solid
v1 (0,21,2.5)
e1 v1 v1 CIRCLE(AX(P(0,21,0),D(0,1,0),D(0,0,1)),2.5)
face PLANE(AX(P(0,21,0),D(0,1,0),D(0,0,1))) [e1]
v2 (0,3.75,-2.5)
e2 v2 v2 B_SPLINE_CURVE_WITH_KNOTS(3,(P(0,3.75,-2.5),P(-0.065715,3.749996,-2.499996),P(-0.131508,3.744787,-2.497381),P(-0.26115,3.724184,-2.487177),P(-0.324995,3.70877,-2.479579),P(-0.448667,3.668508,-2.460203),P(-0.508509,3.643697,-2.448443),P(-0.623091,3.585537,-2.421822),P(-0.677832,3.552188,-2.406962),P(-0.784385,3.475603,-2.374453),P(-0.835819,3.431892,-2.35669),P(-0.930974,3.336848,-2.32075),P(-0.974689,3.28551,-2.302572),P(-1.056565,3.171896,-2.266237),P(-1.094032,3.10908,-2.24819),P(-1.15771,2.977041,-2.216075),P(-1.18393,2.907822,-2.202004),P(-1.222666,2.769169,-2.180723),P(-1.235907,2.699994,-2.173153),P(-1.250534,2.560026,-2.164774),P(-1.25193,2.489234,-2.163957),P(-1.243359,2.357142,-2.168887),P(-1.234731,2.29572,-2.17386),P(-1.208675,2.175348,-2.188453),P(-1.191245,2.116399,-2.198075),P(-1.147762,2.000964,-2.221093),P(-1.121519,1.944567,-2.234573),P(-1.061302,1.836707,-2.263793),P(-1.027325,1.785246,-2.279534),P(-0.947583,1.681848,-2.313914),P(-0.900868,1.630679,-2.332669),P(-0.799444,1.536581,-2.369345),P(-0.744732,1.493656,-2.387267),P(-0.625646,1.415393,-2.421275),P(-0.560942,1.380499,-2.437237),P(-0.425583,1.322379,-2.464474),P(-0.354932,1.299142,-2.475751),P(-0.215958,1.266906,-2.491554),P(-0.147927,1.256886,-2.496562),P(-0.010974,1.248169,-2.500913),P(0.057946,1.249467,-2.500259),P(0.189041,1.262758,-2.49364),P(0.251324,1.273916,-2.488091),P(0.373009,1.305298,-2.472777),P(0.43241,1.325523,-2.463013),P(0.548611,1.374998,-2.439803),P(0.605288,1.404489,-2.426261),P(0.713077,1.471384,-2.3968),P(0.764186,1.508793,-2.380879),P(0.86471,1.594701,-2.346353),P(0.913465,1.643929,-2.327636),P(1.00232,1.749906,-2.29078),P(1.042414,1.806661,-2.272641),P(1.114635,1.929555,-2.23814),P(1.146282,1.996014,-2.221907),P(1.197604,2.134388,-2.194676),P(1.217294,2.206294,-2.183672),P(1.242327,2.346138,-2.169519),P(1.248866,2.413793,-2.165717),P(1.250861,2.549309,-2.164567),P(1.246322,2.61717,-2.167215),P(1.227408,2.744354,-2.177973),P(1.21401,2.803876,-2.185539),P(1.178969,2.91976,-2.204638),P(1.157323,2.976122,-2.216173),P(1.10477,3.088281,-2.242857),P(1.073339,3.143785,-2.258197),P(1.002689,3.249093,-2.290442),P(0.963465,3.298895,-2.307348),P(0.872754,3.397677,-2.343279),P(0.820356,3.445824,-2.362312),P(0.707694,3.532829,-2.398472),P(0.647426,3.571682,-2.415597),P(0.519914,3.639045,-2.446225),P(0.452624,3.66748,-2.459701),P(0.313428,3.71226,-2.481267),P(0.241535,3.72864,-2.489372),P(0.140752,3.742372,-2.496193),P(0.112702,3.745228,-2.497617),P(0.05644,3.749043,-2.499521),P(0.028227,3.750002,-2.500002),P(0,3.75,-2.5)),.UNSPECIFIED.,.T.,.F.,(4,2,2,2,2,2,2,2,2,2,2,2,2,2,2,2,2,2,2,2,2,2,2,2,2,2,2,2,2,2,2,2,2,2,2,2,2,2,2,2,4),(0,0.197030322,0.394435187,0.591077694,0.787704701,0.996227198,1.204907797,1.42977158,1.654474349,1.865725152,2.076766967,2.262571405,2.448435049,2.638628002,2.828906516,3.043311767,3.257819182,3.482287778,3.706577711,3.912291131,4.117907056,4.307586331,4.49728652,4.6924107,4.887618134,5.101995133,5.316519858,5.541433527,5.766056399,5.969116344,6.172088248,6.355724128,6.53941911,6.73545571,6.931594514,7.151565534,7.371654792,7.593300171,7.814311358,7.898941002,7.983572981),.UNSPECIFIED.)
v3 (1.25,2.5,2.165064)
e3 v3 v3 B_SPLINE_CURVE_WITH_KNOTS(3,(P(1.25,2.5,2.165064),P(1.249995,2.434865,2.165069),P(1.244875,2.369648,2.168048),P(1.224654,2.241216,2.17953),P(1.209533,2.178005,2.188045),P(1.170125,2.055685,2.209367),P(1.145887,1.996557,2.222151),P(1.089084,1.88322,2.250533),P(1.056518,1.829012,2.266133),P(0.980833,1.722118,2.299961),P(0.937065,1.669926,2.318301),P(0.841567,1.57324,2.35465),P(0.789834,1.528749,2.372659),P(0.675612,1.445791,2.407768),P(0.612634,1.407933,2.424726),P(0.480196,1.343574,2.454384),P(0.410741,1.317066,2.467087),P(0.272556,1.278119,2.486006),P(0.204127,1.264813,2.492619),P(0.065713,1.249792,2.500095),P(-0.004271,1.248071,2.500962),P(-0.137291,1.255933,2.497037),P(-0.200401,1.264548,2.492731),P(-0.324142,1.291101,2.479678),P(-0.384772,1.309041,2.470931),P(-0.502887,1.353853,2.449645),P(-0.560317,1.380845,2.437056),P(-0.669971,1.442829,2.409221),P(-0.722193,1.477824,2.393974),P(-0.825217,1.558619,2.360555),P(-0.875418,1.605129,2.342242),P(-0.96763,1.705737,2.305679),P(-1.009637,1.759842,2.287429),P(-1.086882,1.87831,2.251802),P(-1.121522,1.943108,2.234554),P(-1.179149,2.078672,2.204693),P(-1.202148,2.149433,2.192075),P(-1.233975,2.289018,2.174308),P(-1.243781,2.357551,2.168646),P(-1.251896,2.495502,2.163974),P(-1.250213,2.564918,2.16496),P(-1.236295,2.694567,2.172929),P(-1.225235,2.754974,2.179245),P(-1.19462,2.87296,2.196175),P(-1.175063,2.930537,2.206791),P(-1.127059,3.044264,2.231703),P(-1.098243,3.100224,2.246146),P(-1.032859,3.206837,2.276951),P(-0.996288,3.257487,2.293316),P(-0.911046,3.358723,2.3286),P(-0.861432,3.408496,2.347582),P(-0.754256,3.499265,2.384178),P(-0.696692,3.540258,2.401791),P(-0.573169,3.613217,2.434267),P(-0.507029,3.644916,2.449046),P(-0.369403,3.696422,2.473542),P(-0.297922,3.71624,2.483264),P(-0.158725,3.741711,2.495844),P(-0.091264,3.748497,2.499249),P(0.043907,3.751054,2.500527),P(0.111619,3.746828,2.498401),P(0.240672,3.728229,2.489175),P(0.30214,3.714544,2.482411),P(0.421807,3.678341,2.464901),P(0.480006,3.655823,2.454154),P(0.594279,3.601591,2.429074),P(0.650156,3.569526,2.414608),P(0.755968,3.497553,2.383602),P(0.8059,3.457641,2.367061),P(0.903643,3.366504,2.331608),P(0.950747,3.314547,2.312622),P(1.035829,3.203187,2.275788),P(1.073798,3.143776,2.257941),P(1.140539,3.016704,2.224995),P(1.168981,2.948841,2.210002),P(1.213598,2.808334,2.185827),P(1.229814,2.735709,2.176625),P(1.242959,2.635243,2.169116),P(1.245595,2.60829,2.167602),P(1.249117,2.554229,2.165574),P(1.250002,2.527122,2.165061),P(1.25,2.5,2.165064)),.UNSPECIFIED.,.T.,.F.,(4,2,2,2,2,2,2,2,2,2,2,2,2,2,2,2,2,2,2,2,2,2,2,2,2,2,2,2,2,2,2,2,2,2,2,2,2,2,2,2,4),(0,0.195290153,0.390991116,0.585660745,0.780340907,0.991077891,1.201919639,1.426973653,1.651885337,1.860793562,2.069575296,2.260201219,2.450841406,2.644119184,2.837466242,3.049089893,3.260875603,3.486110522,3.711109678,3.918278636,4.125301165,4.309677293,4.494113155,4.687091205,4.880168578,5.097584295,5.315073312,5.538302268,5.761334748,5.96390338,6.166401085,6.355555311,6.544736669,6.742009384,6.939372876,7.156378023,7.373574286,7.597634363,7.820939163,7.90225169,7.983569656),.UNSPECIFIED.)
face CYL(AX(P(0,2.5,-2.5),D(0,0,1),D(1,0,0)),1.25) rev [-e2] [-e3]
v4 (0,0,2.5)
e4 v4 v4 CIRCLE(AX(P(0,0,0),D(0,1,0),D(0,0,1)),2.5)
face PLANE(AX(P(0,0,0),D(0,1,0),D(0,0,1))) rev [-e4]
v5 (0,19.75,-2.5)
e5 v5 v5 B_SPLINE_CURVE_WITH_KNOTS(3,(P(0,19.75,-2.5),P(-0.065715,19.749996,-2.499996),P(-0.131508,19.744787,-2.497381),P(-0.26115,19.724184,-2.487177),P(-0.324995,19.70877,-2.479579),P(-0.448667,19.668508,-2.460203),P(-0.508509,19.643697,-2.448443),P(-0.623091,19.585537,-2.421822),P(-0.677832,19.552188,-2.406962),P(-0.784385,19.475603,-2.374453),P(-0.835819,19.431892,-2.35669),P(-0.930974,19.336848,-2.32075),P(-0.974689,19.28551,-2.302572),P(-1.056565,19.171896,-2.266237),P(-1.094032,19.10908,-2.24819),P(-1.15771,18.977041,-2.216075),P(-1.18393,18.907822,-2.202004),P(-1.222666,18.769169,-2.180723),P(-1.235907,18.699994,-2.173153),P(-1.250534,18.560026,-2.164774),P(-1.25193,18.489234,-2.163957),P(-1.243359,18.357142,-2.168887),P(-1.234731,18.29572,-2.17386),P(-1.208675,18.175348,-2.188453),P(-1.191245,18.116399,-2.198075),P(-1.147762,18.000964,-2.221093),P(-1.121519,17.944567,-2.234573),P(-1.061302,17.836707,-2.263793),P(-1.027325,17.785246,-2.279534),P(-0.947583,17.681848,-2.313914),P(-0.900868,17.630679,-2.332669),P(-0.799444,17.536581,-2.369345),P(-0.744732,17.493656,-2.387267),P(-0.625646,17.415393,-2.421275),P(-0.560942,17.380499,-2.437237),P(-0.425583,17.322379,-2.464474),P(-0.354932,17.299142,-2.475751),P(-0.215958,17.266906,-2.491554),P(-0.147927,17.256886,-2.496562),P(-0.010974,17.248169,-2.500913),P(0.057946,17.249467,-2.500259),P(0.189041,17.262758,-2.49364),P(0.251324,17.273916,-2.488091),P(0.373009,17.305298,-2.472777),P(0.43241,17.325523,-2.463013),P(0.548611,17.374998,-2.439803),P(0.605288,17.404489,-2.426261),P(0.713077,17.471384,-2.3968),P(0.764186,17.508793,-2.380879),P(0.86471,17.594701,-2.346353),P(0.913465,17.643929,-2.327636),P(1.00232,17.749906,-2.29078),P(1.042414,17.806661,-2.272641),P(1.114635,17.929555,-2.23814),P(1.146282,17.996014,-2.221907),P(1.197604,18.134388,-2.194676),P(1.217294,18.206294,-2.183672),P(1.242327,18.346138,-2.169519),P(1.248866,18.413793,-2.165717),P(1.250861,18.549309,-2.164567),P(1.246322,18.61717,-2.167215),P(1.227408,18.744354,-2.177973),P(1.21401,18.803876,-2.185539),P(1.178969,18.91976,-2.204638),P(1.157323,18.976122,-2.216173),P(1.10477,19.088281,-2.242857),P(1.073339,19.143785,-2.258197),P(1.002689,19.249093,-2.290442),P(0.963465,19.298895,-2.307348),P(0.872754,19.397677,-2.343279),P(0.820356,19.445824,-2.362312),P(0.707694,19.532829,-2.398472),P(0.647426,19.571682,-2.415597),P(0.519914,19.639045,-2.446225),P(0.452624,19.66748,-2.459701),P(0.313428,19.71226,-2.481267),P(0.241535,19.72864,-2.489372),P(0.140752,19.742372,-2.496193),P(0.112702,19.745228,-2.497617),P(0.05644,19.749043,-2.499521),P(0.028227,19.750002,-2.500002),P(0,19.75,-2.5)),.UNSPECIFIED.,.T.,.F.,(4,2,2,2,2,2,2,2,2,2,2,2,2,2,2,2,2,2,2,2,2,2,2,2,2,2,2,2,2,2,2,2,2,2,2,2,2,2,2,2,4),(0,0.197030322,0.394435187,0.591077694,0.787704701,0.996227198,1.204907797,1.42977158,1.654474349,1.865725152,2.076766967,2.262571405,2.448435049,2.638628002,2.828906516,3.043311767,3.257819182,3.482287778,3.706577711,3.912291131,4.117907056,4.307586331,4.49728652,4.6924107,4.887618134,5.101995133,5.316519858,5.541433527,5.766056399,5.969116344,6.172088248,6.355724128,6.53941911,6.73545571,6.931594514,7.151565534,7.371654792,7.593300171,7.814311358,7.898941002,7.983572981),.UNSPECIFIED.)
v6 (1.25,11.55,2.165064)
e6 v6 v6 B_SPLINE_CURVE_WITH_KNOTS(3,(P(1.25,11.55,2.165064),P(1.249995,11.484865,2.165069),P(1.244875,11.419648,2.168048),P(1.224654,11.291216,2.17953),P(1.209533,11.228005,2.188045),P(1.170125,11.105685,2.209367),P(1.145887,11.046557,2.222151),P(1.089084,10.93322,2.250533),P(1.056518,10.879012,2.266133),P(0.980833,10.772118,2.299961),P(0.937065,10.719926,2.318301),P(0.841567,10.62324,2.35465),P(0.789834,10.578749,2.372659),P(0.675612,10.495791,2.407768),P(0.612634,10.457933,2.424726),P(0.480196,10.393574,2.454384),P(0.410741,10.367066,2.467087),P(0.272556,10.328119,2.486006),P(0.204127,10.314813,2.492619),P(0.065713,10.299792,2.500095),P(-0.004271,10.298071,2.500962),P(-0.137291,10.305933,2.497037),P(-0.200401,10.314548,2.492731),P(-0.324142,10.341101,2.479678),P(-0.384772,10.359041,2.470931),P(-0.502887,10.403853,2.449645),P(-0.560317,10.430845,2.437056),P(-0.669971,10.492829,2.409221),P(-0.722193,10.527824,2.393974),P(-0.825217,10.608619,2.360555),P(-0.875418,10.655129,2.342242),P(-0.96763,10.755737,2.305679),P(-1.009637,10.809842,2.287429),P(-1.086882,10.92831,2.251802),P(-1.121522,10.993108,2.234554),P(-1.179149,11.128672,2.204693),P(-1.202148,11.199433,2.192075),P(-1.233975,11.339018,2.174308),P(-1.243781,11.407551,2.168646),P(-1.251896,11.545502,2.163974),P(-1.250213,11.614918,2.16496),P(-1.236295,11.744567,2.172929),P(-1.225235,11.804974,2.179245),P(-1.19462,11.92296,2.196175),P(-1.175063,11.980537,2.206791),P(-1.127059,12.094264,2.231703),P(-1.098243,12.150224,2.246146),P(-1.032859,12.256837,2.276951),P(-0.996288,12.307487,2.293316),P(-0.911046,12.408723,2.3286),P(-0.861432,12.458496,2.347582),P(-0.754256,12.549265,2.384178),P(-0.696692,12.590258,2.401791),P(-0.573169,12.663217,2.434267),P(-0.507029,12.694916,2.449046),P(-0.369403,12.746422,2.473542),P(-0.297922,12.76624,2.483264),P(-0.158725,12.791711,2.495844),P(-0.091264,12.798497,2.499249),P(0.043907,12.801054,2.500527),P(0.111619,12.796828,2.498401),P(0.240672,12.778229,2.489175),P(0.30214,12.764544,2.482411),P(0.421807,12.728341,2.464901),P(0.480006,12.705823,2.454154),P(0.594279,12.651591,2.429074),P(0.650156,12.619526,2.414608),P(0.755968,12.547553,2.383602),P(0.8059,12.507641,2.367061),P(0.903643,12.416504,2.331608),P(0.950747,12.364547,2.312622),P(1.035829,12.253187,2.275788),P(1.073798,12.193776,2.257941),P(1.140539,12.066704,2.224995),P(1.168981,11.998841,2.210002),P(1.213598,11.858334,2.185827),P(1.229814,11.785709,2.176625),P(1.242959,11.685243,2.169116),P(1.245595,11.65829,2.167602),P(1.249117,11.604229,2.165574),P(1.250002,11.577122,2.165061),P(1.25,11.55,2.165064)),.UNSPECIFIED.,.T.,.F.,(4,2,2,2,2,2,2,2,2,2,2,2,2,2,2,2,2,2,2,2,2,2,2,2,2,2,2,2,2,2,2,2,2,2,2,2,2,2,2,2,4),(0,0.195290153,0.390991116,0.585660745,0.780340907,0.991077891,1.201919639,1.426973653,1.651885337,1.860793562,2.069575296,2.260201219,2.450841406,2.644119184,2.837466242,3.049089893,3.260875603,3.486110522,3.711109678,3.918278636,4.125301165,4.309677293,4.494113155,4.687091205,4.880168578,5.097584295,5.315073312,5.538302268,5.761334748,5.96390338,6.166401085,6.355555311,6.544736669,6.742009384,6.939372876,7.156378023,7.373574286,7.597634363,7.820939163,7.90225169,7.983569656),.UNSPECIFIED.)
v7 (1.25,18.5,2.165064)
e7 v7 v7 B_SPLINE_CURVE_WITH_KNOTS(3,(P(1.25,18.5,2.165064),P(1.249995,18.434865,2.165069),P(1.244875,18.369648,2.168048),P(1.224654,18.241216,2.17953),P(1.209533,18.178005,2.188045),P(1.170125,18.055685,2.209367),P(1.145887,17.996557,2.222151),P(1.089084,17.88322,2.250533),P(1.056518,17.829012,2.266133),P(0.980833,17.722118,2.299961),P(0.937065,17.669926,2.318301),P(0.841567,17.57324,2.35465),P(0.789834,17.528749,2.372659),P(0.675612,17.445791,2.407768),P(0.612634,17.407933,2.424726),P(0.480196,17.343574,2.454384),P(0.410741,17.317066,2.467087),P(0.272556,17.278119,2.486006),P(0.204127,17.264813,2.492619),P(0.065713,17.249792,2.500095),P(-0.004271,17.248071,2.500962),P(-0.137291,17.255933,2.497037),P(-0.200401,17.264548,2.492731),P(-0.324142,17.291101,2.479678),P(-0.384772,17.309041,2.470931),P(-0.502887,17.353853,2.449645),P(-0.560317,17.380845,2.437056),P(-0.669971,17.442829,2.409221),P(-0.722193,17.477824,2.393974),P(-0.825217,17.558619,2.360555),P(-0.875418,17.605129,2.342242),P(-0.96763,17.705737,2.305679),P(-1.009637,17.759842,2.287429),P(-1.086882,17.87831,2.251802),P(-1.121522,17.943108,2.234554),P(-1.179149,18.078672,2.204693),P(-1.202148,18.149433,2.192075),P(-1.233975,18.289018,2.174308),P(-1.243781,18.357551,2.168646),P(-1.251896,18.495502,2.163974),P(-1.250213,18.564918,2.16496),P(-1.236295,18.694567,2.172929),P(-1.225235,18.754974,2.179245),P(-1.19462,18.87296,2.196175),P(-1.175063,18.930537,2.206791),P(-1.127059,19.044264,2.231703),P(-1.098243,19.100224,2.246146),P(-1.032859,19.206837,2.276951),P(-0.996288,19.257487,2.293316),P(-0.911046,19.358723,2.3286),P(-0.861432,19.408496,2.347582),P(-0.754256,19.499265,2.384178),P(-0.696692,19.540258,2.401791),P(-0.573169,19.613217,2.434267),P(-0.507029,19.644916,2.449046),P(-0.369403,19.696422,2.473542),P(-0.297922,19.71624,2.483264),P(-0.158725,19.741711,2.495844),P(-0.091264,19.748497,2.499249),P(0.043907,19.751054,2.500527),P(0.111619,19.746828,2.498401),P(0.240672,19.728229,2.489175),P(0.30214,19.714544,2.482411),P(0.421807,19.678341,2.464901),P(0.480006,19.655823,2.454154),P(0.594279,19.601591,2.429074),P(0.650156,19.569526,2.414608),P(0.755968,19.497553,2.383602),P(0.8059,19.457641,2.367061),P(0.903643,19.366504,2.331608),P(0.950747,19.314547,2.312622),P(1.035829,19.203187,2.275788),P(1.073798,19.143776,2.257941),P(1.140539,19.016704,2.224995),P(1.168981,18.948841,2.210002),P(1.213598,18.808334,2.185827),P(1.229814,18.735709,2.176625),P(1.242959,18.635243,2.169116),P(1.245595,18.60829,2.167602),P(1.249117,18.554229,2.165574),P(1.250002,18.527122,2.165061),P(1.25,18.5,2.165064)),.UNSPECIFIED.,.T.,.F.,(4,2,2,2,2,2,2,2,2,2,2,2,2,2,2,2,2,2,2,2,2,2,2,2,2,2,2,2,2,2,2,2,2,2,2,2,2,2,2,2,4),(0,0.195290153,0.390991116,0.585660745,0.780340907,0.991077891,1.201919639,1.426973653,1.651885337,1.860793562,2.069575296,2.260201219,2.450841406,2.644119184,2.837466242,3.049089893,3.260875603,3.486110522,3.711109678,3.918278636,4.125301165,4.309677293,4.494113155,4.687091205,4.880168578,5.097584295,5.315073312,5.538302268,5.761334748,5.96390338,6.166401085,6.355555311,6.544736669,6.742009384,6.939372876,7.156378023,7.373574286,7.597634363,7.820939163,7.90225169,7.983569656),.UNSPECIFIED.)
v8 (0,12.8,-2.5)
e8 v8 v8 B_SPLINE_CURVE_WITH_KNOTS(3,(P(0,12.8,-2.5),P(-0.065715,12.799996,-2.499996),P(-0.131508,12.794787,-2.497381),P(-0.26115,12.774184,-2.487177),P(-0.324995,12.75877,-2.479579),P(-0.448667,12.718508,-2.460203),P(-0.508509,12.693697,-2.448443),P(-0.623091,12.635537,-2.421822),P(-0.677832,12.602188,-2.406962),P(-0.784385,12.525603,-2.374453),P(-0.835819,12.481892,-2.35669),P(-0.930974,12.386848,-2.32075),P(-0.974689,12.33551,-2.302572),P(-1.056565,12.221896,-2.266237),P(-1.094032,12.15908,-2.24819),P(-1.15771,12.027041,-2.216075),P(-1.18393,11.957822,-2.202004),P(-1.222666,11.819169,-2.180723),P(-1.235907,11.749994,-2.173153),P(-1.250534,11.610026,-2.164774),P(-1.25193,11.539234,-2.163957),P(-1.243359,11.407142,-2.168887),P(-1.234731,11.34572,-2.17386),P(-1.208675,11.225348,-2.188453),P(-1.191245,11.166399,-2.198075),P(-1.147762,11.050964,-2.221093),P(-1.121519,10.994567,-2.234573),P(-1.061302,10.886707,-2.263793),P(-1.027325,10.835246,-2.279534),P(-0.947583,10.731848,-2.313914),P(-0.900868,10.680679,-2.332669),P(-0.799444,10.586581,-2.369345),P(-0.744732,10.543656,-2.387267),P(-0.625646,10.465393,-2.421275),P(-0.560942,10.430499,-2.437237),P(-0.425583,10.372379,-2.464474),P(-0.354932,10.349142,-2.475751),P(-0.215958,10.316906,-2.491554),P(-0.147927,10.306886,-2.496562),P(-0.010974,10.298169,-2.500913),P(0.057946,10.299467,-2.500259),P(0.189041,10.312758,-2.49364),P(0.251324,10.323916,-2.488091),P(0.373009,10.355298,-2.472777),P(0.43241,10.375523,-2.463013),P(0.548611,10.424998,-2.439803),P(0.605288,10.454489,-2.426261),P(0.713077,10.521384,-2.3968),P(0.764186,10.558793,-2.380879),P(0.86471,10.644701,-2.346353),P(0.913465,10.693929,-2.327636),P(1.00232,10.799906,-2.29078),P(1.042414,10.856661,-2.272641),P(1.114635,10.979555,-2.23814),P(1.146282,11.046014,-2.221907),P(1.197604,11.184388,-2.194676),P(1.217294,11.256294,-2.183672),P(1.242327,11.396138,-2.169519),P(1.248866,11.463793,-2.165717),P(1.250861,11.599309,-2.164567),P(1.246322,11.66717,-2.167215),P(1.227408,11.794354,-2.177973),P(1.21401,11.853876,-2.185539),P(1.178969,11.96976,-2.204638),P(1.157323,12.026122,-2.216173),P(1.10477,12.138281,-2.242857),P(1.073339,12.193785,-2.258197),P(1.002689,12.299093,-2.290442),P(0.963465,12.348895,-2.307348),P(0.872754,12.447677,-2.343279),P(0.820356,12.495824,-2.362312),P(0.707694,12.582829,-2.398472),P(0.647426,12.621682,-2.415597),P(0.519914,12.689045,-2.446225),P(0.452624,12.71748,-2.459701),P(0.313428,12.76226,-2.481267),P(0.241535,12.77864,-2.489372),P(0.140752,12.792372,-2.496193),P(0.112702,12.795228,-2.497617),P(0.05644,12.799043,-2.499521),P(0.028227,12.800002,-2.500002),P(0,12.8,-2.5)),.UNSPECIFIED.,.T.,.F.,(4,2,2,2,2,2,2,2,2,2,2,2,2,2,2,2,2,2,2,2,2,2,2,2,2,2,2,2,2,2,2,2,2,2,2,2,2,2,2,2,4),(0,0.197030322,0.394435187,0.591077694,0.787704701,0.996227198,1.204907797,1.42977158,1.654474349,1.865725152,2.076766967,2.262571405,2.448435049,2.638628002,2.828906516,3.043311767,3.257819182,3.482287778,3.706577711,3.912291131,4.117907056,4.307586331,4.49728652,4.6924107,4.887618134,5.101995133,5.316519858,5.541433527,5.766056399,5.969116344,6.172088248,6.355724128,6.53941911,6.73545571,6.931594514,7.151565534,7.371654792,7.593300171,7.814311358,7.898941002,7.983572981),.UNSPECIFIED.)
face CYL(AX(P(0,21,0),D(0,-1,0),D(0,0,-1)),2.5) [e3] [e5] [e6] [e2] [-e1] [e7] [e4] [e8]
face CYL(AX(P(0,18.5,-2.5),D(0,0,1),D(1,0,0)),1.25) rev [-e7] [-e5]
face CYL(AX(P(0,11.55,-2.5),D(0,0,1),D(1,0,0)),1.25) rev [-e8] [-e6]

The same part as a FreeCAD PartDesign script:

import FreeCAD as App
import Part
import Sketcher
from FreeCAD import Vector

doc = App.newDocument("Part")
body = doc.addObject("PartDesign::Body", "Body")

sketch1 = doc.addObject("Sketcher::SketchObject", "Sketch")
body.addObject(sketch1)
sketch1.AttachmentSupport = (doc.XZ_Plane, [""])
sketch1.MapMode = "FlatFace"
sketch1.addGeometry(Part.Circle(Vector(0, 0, 0), Vector(0, 0, 1), 2.5), False)
sketch1.addConstraint([
    Sketcher.Constraint("Coincident", 0, 3, -1, 1),
    Sketcher.Constraint("Diameter", 0, 5.0),
])
pad1 = doc.addObject("PartDesign::Pad", "Pad")
body.addObject(pad1)
pad1.Profile = sketch1
pad1.Length = 21
pad1.Reversed = True

sketch2 = doc.addObject("Sketcher::SketchObject", "Sketch001")
body.addObject(sketch2)
sketch2.AttachmentSupport = (doc.XY_Plane, [""])
sketch2.MapMode = "FlatFace"
sketch2.addGeometry([
    Part.Circle(Vector(0, 18.5, 0), Vector(0, 0, 1), 1.25),
    Part.Circle(Vector(0, 2.5, 0), Vector(0, 0, 1), 1.25),
    Part.Circle(Vector(0, 11.55, 0), Vector(0, 0, 1), 1.25),
], False)
sketch2.addConstraint([
    Sketcher.Constraint("Equal", 0, 1),
    Sketcher.Constraint("Equal", 1, 2),
    Sketcher.Constraint("PointOnObject", 0, 3, -2),
    Sketcher.Constraint("PointOnObject", 1, 3, -2),
    Sketcher.Constraint("PointOnObject", 2, 3, -2),
    Sketcher.Constraint("Diameter", 0, 2.5),
    Sketcher.Constraint("DistanceY", 1, 3, 0, 3, 16.0),
    Sketcher.Constraint("DistanceY", -1, 1, 0, 3, 18.5),
    Sketcher.Constraint("DistanceY", -1, 1, 2, 3, 11.55),
])
pocket1 = doc.addObject("PartDesign::Pocket", "Pocket")
body.addObject(pocket1)
pocket1.Profile = sketch2
pocket1.Type = "ThroughAll"
pocket1.Midplane = True

doc.recompute()
